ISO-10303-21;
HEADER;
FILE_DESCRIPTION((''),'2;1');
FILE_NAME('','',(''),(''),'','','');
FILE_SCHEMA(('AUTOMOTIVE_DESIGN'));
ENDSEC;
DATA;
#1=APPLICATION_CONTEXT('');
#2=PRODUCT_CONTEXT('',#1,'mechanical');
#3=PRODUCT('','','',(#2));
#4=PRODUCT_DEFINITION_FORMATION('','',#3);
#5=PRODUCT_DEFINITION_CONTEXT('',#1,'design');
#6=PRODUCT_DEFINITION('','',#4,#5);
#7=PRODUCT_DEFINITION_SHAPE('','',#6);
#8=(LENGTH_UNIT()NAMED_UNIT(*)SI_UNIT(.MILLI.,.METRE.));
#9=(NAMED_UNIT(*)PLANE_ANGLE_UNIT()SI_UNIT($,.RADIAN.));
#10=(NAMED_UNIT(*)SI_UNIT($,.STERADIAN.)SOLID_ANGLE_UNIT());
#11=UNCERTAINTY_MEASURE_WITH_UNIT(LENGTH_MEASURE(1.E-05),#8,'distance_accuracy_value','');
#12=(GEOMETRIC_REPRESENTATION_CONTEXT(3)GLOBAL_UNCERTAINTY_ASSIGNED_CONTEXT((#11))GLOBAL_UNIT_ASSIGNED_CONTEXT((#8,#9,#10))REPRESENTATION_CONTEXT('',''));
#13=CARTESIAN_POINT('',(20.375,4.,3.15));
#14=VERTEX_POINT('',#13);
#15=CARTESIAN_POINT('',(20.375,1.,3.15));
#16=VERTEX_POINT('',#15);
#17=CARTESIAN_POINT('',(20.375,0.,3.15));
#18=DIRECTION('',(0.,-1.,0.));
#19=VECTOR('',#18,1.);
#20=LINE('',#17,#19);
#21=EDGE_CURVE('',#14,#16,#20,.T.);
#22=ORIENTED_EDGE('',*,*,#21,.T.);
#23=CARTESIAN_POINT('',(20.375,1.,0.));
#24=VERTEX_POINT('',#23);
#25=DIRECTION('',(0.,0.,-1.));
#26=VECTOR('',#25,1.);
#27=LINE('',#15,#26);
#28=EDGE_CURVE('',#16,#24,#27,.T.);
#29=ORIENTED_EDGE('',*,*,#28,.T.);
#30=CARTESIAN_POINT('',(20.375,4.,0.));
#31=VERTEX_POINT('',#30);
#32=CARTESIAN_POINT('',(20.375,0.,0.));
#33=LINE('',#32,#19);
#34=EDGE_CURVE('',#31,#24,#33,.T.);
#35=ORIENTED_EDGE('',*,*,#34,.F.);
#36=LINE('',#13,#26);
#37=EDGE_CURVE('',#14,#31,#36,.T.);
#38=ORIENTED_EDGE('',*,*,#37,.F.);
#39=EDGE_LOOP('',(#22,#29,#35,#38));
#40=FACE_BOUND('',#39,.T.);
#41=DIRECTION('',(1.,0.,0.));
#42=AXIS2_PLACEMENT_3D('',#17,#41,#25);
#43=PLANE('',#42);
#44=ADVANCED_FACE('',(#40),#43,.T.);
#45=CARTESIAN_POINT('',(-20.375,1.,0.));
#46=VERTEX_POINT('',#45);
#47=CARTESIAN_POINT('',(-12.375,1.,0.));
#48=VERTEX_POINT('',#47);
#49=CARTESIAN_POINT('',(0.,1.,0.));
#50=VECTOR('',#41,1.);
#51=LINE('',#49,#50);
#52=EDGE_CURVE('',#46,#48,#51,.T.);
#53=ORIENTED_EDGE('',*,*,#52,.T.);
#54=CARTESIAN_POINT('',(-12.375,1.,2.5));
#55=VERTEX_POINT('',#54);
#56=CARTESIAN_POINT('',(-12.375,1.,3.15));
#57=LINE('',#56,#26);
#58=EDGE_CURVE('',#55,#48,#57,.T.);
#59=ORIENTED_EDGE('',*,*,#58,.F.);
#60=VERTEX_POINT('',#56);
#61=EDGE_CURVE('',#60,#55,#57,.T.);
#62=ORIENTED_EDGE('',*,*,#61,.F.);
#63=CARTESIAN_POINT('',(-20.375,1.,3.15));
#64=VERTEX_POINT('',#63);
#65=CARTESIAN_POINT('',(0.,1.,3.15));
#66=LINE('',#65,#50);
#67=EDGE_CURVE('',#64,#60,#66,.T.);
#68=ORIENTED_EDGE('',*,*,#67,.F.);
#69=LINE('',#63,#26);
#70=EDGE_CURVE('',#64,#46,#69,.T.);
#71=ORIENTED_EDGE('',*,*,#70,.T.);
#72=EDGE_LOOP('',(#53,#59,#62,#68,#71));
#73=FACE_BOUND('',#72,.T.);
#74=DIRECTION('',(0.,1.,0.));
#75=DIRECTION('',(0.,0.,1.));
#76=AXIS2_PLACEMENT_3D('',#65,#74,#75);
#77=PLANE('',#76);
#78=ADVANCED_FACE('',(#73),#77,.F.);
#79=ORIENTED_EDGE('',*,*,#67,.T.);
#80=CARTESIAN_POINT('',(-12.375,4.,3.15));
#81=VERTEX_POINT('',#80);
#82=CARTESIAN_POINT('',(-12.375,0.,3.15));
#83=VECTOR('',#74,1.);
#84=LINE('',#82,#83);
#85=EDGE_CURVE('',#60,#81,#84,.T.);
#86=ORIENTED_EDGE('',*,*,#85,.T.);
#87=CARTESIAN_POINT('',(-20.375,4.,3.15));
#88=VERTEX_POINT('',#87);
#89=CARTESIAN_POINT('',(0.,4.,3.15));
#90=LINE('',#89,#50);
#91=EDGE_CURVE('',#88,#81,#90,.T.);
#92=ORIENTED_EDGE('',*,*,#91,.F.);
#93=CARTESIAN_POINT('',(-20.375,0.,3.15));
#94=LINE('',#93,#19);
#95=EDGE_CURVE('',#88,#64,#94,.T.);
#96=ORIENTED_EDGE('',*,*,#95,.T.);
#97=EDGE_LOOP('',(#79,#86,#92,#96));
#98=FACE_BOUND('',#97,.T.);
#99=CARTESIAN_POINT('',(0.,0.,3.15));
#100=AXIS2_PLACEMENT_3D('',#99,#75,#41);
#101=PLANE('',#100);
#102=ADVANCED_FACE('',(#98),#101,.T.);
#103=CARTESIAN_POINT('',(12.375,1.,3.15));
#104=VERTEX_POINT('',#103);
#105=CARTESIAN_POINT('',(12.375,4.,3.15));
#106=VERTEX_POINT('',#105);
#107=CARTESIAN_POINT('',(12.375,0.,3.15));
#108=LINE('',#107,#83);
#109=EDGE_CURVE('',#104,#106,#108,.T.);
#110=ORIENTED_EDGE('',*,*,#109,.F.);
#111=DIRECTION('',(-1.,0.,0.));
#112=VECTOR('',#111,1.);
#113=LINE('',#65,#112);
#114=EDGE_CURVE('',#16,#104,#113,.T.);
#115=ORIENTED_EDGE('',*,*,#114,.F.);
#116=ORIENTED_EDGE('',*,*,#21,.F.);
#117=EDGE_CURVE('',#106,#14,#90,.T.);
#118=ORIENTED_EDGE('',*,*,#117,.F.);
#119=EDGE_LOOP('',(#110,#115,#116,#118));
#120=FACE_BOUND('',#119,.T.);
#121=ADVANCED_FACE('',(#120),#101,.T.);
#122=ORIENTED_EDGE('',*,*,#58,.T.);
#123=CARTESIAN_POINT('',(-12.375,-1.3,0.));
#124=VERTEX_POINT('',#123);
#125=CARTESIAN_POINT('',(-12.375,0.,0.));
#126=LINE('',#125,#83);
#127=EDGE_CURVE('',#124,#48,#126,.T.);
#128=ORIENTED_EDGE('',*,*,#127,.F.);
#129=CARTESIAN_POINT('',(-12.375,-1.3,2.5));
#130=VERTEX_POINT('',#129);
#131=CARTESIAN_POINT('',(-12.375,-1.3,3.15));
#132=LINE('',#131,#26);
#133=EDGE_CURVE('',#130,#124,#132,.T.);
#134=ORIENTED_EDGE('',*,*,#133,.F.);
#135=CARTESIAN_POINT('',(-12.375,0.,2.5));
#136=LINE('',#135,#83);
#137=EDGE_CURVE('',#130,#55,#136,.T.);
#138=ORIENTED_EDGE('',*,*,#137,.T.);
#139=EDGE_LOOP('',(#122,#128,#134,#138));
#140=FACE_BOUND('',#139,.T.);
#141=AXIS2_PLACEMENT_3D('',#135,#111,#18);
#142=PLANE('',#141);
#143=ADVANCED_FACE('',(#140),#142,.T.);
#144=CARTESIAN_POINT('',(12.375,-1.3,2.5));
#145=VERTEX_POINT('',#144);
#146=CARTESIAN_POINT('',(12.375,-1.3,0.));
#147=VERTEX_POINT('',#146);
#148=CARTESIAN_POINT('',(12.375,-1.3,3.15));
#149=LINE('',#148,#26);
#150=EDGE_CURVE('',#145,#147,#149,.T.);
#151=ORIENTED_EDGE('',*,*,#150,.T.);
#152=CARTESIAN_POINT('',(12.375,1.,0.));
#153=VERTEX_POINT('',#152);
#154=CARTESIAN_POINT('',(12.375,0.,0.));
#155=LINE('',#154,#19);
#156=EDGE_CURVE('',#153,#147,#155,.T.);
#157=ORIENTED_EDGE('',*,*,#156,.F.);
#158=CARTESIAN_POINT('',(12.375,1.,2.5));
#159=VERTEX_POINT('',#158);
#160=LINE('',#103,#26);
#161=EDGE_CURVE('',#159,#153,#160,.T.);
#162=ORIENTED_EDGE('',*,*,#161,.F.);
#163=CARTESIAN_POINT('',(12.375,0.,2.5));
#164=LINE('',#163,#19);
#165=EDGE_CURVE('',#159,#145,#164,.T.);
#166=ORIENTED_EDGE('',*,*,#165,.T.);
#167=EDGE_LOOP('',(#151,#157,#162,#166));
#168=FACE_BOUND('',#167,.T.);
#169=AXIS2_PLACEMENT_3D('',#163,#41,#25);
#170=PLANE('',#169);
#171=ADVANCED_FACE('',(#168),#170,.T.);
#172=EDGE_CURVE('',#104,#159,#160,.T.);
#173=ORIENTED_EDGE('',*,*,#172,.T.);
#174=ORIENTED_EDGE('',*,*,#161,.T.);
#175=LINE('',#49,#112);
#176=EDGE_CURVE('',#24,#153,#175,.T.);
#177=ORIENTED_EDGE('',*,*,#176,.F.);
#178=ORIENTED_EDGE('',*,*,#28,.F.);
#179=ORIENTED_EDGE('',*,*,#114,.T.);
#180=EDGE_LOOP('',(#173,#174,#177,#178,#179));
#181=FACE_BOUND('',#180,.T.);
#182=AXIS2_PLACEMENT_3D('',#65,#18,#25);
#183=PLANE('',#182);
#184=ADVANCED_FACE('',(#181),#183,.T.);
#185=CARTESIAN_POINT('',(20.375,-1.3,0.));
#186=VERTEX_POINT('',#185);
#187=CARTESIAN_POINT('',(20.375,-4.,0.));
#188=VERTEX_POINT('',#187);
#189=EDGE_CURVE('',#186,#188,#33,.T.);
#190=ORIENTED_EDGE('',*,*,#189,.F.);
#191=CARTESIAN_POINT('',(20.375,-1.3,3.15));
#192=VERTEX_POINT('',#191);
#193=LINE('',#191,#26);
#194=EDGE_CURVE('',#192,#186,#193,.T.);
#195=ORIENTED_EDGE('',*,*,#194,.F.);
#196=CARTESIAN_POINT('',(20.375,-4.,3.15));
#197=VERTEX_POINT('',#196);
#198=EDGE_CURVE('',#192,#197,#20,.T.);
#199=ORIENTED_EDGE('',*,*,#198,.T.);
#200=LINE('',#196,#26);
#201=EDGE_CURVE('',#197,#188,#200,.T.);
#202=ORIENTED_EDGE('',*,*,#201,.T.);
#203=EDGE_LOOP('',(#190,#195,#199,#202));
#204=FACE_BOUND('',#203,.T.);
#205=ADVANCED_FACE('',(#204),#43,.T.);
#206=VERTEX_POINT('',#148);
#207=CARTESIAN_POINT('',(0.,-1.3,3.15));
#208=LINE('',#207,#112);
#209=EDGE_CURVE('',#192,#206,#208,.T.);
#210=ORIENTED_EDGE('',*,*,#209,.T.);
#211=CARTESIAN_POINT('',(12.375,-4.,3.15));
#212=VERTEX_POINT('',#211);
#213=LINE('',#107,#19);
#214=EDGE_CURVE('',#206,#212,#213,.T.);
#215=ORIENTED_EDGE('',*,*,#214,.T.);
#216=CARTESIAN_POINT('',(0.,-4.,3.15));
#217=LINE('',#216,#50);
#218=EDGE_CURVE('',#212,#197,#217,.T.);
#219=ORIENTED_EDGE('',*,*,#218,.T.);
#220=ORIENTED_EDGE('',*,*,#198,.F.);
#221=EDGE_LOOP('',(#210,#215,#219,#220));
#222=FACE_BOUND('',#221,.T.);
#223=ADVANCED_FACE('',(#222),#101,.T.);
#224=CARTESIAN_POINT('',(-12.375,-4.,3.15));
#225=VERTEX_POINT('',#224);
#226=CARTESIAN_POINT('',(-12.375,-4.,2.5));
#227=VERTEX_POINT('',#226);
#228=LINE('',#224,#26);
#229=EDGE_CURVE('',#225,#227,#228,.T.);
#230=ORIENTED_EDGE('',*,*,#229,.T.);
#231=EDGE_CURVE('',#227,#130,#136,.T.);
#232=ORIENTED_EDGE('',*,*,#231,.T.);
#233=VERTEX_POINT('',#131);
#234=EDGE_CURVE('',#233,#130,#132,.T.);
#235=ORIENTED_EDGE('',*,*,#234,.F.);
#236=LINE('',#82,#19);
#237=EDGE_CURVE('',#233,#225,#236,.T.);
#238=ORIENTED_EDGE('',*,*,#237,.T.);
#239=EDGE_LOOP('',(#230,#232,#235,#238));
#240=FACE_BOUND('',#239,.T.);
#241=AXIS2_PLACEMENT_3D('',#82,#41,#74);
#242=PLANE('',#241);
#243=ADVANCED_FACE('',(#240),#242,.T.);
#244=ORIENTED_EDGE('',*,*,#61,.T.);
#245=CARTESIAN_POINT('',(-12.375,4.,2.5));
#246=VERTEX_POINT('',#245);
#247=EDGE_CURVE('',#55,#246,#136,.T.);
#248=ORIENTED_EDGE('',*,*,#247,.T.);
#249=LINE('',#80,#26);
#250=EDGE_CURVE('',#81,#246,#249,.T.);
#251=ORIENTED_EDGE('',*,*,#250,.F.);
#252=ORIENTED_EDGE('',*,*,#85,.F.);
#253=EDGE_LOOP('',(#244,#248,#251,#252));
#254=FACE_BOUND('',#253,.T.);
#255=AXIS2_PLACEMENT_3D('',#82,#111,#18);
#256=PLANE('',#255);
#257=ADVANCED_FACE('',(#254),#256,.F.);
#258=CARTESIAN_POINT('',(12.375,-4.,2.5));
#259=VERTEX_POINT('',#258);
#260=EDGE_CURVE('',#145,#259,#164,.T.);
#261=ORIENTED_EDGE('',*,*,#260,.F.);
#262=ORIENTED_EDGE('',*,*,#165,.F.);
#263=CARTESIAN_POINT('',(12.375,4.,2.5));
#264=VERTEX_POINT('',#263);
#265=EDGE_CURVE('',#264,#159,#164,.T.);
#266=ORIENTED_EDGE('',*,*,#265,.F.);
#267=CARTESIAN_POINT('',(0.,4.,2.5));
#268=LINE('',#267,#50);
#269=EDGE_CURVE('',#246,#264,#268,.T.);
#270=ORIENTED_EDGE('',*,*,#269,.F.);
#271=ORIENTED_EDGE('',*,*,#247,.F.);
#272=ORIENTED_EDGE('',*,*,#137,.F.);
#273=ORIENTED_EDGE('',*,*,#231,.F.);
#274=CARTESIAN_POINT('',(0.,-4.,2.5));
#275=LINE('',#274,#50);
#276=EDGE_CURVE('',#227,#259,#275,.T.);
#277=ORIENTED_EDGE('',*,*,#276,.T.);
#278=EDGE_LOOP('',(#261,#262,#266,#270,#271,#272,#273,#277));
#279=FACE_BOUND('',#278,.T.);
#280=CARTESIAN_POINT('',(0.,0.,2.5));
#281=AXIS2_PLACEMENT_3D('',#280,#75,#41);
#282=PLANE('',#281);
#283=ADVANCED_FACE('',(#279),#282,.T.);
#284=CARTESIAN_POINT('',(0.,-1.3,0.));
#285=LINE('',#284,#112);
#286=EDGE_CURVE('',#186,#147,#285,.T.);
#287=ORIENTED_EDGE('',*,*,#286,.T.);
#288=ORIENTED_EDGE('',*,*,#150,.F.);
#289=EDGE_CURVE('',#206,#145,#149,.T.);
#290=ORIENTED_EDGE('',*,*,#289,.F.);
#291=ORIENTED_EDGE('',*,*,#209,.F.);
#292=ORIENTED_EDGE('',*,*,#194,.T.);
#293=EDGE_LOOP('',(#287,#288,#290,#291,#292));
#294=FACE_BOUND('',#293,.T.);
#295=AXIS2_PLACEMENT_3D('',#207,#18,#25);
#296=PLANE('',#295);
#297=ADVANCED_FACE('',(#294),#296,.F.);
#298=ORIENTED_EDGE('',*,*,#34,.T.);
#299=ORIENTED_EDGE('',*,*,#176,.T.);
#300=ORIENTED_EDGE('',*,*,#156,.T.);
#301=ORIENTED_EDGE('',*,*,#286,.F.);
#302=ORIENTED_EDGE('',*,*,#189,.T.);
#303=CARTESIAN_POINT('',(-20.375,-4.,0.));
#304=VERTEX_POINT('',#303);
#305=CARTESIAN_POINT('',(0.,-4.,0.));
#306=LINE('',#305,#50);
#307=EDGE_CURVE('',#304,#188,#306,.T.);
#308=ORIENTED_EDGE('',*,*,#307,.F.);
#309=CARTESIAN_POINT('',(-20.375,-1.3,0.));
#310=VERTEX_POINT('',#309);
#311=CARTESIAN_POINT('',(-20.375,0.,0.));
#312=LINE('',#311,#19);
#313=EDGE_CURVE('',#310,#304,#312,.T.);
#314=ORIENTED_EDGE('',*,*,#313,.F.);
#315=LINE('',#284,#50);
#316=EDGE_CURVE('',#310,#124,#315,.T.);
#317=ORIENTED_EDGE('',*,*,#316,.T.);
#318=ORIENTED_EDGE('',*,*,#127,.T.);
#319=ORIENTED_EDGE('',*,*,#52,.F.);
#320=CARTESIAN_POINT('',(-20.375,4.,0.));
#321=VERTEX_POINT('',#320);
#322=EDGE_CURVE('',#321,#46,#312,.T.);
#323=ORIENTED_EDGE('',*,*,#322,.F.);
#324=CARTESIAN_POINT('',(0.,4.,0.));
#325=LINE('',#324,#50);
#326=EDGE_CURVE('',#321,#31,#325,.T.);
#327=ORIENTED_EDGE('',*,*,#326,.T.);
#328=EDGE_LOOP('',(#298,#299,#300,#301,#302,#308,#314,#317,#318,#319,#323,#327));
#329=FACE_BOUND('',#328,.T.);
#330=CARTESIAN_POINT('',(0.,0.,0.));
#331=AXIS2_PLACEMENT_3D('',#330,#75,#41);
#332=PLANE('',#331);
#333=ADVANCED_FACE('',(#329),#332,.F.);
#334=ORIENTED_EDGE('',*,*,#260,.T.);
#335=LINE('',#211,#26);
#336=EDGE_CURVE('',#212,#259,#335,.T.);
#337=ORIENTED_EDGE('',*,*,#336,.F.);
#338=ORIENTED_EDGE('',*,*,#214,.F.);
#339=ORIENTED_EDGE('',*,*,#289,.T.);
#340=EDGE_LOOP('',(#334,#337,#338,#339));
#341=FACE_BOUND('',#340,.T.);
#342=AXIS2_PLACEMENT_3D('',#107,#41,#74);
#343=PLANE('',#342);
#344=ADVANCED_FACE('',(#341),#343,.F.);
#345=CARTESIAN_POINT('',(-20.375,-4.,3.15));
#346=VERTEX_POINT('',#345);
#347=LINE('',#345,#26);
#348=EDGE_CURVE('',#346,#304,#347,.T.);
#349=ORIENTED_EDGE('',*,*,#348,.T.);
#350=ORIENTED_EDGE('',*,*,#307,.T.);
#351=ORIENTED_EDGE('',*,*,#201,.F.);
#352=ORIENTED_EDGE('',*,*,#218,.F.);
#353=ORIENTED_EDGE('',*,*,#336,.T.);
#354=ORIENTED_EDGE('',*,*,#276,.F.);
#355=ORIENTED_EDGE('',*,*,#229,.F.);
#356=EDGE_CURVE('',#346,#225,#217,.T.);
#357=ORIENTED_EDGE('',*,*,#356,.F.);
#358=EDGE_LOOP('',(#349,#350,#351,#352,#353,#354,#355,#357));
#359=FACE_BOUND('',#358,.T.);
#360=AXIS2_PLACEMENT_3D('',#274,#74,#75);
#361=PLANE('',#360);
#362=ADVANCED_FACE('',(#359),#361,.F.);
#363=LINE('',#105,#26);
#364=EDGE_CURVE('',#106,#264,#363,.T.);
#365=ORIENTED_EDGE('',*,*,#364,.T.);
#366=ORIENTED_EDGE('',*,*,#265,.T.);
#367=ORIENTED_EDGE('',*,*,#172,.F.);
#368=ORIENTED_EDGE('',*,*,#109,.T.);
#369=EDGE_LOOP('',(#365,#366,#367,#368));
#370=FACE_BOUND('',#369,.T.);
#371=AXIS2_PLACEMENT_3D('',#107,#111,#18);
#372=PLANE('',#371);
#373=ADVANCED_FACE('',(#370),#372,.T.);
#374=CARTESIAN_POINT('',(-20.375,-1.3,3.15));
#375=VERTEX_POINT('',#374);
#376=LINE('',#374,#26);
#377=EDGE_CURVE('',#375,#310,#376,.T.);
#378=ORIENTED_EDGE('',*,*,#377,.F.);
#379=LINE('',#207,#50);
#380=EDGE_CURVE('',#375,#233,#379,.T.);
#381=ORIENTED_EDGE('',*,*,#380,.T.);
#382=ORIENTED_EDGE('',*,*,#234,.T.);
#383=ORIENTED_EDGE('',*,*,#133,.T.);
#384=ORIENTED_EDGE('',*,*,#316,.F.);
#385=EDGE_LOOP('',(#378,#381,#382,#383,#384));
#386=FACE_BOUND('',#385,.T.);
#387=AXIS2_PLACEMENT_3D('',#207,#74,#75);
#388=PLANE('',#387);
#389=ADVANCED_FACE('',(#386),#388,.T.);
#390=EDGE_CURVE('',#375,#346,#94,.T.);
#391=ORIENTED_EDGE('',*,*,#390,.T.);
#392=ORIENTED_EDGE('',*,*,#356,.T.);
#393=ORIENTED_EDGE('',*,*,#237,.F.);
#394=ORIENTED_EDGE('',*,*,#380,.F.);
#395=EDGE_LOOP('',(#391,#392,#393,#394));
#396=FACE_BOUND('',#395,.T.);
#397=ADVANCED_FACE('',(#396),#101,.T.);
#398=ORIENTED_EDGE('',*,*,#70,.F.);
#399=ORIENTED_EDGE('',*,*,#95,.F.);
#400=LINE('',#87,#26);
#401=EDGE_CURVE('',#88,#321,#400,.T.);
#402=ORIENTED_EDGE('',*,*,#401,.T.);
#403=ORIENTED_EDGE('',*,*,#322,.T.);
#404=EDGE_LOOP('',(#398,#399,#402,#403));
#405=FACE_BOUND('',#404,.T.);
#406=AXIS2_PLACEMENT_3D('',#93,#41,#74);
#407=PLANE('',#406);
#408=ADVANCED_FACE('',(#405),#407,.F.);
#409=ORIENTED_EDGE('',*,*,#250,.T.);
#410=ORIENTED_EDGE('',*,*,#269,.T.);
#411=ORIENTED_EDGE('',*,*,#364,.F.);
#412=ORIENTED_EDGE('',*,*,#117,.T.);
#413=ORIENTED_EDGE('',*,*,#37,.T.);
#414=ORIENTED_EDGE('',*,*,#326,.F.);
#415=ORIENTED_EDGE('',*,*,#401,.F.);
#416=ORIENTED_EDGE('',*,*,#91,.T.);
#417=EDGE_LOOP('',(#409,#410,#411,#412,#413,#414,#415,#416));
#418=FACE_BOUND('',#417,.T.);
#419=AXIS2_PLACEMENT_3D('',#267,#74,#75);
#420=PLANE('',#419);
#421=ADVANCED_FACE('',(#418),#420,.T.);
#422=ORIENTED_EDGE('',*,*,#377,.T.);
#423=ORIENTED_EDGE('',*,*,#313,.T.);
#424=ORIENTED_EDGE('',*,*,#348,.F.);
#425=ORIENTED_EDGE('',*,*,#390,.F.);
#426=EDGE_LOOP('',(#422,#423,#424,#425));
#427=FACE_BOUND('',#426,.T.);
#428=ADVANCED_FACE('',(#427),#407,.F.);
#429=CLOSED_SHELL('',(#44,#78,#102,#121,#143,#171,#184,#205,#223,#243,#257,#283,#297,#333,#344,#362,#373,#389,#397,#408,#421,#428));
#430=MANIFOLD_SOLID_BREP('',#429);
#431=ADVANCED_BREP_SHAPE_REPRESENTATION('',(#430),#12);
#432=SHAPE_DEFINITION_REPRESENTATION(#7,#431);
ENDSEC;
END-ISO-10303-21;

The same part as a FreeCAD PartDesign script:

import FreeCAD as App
import Part
import Sketcher

V = App.Vector


def add_polygon(sketch, points):
    """Adds a closed chain of lines whose ends are joined by coincident constraints."""
    first, n = sketch.GeometryCount, len(points)
    for a, b in zip(points, points[1:] + points[:1]):
        sketch.addGeometry(Part.LineSegment(App.Vector(*a, 0), App.Vector(*b, 0)), False)
    for i in range(n):
        sketch.addConstraint(Sketcher.Constraint("Coincident", first + i, 2, first + (i + 1) % n, 1))

doc = App.newDocument("Part")
body = doc.addObject("PartDesign::Body", "Body")

# Sketch on XY plane
sketch1 = doc.addObject("Sketcher::SketchObject", "Sketch")
body.addObject(sketch1)
sketch1.AttachmentSupport = (doc.XY_Plane, [""])
sketch1.MapMode = "FlatFace"
add_polygon(sketch1, [(12.375, 4), (-12.375, 4), (-12.375, -4), (12.375, -4)])  # lines 0-3
sketch1.addConstraint([
    Sketcher.Constraint("Horizontal", 0),
    Sketcher.Constraint("Vertical", 1),
    Sketcher.Constraint("Horizontal", 2),
    Sketcher.Constraint("Vertical", 3),
    Sketcher.Constraint("Symmetric", 0, 2, 2, 2, -1, 1),
    Sketcher.Constraint("DistanceY", 1, 2, 1, 1, 8.0),
    Sketcher.Constraint("DistanceX", 0, 2, 0, 1, 24.75),
])
pad1 = doc.addObject("PartDesign::Pad", "Pad")
body.addObject(pad1)
pad1.Profile = sketch1
pad1.Length = 2.5

# Sketch on XY plane
sketch2 = doc.addObject("Sketcher::SketchObject", "Sketch001")
body.addObject(sketch2)
sketch2.AttachmentSupport = (doc.XY_Plane, [""])
sketch2.MapMode = "FlatFace"
add_polygon(sketch2, [(-20.375, 4), (-20.375, 1), (-12.375, 1), (-12.375, 4)])  # lines 0-3
add_polygon(sketch2, [(-12.375, -4), (-12.375, -1.3), (-20.375, -1.3), (-20.375, -4)])  # lines 4-7
add_polygon(sketch2, [(12.375, -1.3), (12.375, -4), (20.375, -4), (20.375, -1.3)])  # lines 8-11
add_polygon(sketch2, [(12.375, 4), (12.375, 1), (20.375, 1), (20.375, 4)])  # lines 12-15
sketch2.addConstraint([
    Sketcher.Constraint("Vertical", 0),
    Sketcher.Constraint("Horizontal", 1),
    Sketcher.Constraint("Vertical", 2),
    Sketcher.Constraint("Horizontal", 3),
    Sketcher.Constraint("Vertical", 4),
    Sketcher.Constraint("Horizontal", 5),
    Sketcher.Constraint("Vertical", 6),
    Sketcher.Constraint("Horizontal", 7),
    Sketcher.Constraint("Vertical", 8),
    Sketcher.Constraint("Horizontal", 9),
    Sketcher.Constraint("Vertical", 10),
    Sketcher.Constraint("Horizontal", 11),
    Sketcher.Constraint("Vertical", 12),
    Sketcher.Constraint("Horizontal", 13),
    Sketcher.Constraint("Vertical", 14),
    Sketcher.Constraint("Horizontal", 15),
    Sketcher.Constraint("Symmetric", 2, 2, 8, 2, -1, 1),
    Sketcher.Constraint("Symmetric", 6, 2, 14, 2, -1, 1),
    Sketcher.Constraint("Symmetric", 7, 2, 8, 2, -2),
    Sketcher.Constraint("Symmetric", 5, 2, 10, 2, -2),
    Sketcher.Constraint("Symmetric", 1, 2, 12, 2, -2),
    Sketcher.Constraint("Vertical", 3, 2, 5, 2),
    Sketcher.Constraint("DistanceX", 1, 1, 1, 2, 8.0),
    Sketcher.Constraint("DistanceY", 0, 2, 0, 1, 3.0),
    Sketcher.Constraint("DistanceY", 4, 1, 4, 2, 2.7),
    Sketcher.Constraint("DistanceY", -1, 1, 0, 2, 1.0),
    Sketcher.Constraint("DistanceX", 7, 2, 8, 2, 24.75),
])
pad2 = doc.addObject("PartDesign::Pad", "Pad001")
body.addObject(pad2)
pad2.Profile = sketch2
pad2.Length = 3.15

doc.recompute()
